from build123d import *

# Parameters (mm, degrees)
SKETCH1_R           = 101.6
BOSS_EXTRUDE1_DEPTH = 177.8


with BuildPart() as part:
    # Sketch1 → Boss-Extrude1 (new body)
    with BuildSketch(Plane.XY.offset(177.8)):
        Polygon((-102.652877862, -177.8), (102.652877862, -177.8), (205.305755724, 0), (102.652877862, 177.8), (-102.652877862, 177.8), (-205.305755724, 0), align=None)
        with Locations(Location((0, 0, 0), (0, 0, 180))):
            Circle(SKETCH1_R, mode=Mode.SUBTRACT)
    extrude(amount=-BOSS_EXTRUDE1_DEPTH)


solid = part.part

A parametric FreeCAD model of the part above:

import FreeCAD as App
import Part
import Sketcher
Q = App.Units.Quantity


def add_polygon(sketch, points):
    """Adds a closed chain of lines whose ends are joined by coincident constraints."""
    first, n = sketch.GeometryCount, len(points)
    for a, b in zip(points, points[1:] + points[:1]):
        sketch.addGeometry(Part.LineSegment(App.Vector(*a, 0), App.Vector(*b, 0)), False)
    for i in range(n):
        sketch.addConstraint(Sketcher.Constraint("Coincident", first + i, 2, first + (i + 1) % n, 1))

doc = App.newDocument("Part")
body = doc.addObject("PartDesign::Body", "Body")

sketch1 = doc.addObject("Sketcher::SketchObject", "Sketch")
body.addObject(sketch1)
sketch1.AttachmentSupport = (doc.XY_Plane, [""])
sketch1.MapMode = "FlatFace"
sketch1.AttachmentOffset = App.Placement(App.Vector(0, 0, 7 * 25.4), App.Rotation())
add_polygon(sketch1, [(-102.652878, -177.8), (102.652878, -177.8), (205.305756, 0), (102.652878, 177.8), (-102.652878, 177.8), (-205.305756, 0)])
sketch1.addGeometry(Part.Circle(App.Vector(0, 0, 0), App.Vector(0, 0, 1), 101.6), False)
sketch1.addConstraint(Sketcher.Constraint("Horizontal", 0))
sketch1.addConstraint(Sketcher.Constraint("Horizontal", 3))
sketch1.addConstraint(Sketcher.Constraint("Coincident", 6, 3, -1, 1))
sketch1.addConstraint(Sketcher.Constraint("Symmetric", 0, 2, 3, 2, -1, 1))
sketch1.addConstraint(Sketcher.Constraint("Symmetric", 1, 2, 4, 2, -1, 1))
sketch1.addConstraint(Sketcher.Constraint("PointOnObject", 1, 2, -1))
sketch1.addConstraint(Sketcher.Constraint("Parallel", 2, 5))
sketch1.addConstraint(Sketcher.Constraint("Vertical", 0, 2, 2, 2))
sketch1.addConstraint(Sketcher.Constraint("Diameter", 6, Q("8 in")))
sketch1.addConstraint(Sketcher.Constraint("DistanceY", 0, 2, -1, 1, Q("7 in")))
sketch1.addConstraint(Sketcher.Constraint("Angle", 1, Q("60 deg")))
sketch1.addConstraint(Sketcher.Constraint("DistanceX", 0, 1, 0, 2, 205.305756))
pad1 = doc.addObject("PartDesign::Pad", "Pad")
body.addObject(pad1)
pad1.Profile = sketch1
pad1.Length = Q("7 in")
pad1.Reversed = True

doc.recompute()
